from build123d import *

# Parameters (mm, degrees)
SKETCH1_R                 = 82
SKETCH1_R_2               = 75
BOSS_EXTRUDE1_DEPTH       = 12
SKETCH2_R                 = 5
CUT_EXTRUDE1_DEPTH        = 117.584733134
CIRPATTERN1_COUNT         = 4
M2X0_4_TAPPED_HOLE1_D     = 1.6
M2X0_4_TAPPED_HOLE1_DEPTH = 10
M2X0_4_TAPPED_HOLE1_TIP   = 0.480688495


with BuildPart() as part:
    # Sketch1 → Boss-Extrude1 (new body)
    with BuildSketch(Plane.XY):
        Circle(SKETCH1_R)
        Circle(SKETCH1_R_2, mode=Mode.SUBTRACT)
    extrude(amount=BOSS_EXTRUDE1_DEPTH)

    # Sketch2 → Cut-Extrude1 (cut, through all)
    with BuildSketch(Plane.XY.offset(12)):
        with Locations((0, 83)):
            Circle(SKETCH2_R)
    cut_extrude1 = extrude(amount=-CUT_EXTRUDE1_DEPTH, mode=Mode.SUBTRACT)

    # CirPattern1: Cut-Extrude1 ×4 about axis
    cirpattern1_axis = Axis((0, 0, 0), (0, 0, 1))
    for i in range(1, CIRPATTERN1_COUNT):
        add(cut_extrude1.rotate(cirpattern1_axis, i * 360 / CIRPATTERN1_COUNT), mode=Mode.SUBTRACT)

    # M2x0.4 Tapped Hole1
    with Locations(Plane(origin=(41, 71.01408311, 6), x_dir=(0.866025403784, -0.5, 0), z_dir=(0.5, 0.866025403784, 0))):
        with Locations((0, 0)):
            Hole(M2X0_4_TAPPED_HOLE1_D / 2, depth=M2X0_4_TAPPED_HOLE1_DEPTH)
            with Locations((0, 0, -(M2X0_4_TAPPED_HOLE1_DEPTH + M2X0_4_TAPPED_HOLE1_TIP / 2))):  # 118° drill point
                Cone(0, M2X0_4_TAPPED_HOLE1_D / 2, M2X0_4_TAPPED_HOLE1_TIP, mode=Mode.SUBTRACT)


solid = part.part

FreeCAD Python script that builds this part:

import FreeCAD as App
import Part
import Sketcher
from FreeCAD import Vector
Q = App.Units.Quantity

doc = App.newDocument("Part")
body = doc.addObject("PartDesign::Body", "Body")

# Sketch on XY plane
sketch1 = doc.addObject("Sketcher::SketchObject", "Sketch")
body.addObject(sketch1)
sketch1.AttachmentSupport = (doc.XY_Plane, [""])
sketch1.MapMode = "FlatFace"
sketch1.addGeometry([
    Part.Circle(Vector(0, 0, 0), Vector(0, 0, 1), 82),
    Part.Circle(Vector(0, 0, 0), Vector(0, 0, 1), 75),
], False)
sketch1.addConstraint([
    Sketcher.Constraint("Coincident", 0, 3, -1, 1),
    Sketcher.Constraint("Coincident", 1, 3, -1, 1),
    Sketcher.Constraint("Diameter", 0, Q("164 mm")),
    Sketcher.Constraint("Diameter", 1, Q("150 mm")),
])
pad1 = doc.addObject("PartDesign::Pad", "Pad")
body.addObject(pad1)
pad1.Profile = sketch1
pad1.Length = 12

# Sketch on XY plane
sketch2 = doc.addObject("Sketcher::SketchObject", "Sketch001")
body.addObject(sketch2)
sketch2.AttachmentSupport = (doc.XY_Plane, [""])
sketch2.MapMode = "FlatFace"
sketch2.AttachmentOffset = App.Placement(Vector(0, 0, 12), App.Rotation())
sketch2.addGeometry(Part.Circle(Vector(0, 83, 0), Vector(0, 0, 1), 5), False)
sketch2.addConstraint([
    Sketcher.Constraint("PointOnObject", 0, 3, -2),
    Sketcher.Constraint("Diameter", 0, Q("10 mm")),
    Sketcher.Constraint("DistanceY", -1, 1, 0, 3, Q("83 mm")),
])
pocket1 = doc.addObject("PartDesign::Pocket", "Pocket")
body.addObject(pocket1)
pocket1.Profile = sketch2
pocket1.Type = "ThroughAll"
doc.recompute()

polarpattern = doc.addObject("PartDesign::PolarPattern", "PolarPattern")
body.addObject(polarpattern)
polarpattern.Originals = [pocket1]
polarpattern.Axis = (doc.Z_Axis, [""])
polarpattern.Angle = 360
polarpattern.Occurrences = 4
body.Tip = polarpattern

# Sketch on an angled plane
sketch3 = doc.addObject("Sketcher::SketchObject", "Sketch002")
body.addObject(sketch3)
sketch3.Placement = App.Placement(Vector(41, 71.014083, 0), App.Rotation(Vector(0.866025404, -0.5, 0), Vector(0, 0, -1), Vector(0.5, 0.866025404, 0), "ZXY"))
sketch3.addGeometry(Part.Circle(Vector(0, -6, 0), Vector(0, 0, 1), 0.8), False)
sketch3.addConstraint([
    Sketcher.Constraint("PointOnObject", 0, 3, -2),
    Sketcher.Constraint("Diameter", 0, Q("1.6 mm")),
    Sketcher.Constraint("DistanceY", 0, 3, -1, 1, Q("6 mm")),
])
doc.recompute()
hole = doc.addObject("PartDesign::Hole", "Hole")
body.addObject(hole)
hole.Profile = sketch3
hole.ThreadType = "None"
hole.Diameter = 1.6
hole.DepthType = "Dimension"
hole.Depth = 10
hole.DrillPoint = "Angled"
hole.DrillPointAngle = 118

doc.recompute()
